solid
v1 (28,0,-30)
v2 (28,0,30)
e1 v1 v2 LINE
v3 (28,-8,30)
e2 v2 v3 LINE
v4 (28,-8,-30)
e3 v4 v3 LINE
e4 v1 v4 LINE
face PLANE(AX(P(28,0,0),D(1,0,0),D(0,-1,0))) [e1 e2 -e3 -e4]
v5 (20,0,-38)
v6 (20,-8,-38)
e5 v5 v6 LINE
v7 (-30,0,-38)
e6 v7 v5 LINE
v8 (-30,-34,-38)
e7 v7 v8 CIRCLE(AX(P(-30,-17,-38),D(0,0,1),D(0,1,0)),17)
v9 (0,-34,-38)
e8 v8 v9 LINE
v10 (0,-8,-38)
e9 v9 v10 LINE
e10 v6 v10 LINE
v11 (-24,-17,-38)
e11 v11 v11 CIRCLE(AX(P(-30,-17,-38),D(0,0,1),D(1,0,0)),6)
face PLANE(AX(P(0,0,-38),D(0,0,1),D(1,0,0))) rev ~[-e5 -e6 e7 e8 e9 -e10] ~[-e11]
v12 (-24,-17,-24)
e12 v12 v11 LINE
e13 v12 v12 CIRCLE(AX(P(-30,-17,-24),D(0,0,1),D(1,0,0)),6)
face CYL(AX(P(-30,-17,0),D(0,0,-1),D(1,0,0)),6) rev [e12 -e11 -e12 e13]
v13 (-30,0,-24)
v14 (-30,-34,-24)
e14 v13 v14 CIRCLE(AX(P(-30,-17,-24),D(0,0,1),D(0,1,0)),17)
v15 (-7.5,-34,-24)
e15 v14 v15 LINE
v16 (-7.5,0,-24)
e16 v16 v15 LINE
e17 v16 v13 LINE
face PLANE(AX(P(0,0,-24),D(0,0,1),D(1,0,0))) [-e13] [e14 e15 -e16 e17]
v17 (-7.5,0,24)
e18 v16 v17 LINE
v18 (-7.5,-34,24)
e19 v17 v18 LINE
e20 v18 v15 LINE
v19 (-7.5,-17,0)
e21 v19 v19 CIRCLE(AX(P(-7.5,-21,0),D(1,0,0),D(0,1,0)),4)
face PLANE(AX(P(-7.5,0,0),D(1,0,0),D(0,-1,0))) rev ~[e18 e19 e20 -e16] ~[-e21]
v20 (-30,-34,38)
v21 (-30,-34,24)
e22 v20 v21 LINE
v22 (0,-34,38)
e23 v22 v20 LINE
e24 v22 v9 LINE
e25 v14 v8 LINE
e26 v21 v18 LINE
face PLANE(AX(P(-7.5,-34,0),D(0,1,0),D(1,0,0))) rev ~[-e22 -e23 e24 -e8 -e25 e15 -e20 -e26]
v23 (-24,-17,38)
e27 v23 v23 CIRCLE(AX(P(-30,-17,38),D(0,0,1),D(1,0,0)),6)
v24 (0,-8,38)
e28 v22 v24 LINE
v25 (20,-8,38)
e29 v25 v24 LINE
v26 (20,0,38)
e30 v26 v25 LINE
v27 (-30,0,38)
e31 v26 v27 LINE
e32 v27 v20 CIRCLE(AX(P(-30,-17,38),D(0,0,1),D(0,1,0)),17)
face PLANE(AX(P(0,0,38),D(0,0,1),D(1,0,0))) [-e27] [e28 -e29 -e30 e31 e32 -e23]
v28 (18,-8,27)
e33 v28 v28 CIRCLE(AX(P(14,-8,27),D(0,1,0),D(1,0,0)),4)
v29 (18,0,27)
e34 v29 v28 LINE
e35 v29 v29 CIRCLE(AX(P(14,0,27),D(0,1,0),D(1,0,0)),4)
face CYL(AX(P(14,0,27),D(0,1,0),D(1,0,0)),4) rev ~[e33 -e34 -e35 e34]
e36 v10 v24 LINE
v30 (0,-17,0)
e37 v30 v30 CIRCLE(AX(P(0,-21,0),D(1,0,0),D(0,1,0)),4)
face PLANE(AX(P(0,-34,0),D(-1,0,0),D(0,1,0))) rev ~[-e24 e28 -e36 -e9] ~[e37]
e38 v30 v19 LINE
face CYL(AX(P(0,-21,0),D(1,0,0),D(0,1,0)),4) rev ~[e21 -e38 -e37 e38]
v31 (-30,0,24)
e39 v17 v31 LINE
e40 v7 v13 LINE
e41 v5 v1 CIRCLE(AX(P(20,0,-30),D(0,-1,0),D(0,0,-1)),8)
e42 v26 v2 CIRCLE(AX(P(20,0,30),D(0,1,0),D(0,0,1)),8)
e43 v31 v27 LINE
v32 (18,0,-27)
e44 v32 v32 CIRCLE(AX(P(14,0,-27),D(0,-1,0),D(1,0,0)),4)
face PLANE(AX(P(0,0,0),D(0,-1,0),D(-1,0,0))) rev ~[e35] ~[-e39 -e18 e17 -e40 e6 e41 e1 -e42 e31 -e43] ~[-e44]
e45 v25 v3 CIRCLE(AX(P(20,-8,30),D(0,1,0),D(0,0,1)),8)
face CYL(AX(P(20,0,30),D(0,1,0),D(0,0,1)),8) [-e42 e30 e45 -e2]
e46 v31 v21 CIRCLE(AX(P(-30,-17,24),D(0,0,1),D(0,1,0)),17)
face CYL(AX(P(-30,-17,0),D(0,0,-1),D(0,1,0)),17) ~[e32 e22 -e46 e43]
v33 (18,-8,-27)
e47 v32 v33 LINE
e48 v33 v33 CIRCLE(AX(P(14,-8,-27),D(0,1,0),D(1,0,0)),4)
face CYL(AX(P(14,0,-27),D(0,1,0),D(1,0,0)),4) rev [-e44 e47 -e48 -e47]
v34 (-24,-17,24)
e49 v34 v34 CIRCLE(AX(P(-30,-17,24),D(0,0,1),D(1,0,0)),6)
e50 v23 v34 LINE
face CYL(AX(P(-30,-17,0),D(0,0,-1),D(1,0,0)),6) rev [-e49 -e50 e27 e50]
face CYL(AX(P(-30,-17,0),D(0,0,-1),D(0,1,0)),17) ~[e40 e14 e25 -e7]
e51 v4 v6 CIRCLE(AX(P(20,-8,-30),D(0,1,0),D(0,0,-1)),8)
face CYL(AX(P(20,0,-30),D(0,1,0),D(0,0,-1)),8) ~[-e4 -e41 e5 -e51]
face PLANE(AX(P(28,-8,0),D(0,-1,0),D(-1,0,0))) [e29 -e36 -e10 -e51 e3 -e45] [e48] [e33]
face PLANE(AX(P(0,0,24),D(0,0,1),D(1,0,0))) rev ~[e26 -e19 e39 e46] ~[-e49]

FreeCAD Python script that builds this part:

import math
import FreeCAD as App
import Part
import Sketcher

V = App.Vector
Q = App.Units.Quantity

doc = App.newDocument("Part")
body = doc.addObject("PartDesign::Body", "Body")

# Sketch on XY plane
sketch1 = doc.addObject("Sketcher::SketchObject", "Sketch")
body.addObject(sketch1)
sketch1.AttachmentSupport = (doc.XY_Plane, [""])
sketch1.MapMode = "FlatFace"
sketch1.addGeometry(Part.LineSegment(V(0, -34, 0), V(0, -8, 0)), False)
sketch1.addGeometry(Part.LineSegment(V(0, -8, 0), V(28, -8, 0)), False)
sketch1.addGeometry(Part.LineSegment(V(28, -8, 0), V(28, 0, 0)), False)
sketch1.addGeometry(Part.LineSegment(V(28, 0, 0), V(-30, 0, 0)), False)
sketch1.addGeometry(Part.ArcOfCircle(Part.Circle(V(-30, -17, 0), V(0, 0, 1), 17), math.radians(90), math.radians(270)), False)
sketch1.addGeometry(Part.LineSegment(V(-30, -34, 0), V(0, -34, 0)), False)
sketch1.addGeometry(Part.Circle(V(-30, -17, 0), V(0, 0, 1), 6), False)
sketch1.addConstraint(Sketcher.Constraint("Coincident", 0, 2, 1, 1))
sketch1.addConstraint(Sketcher.Constraint("Coincident", 1, 2, 2, 1))
sketch1.addConstraint(Sketcher.Constraint("Coincident", 2, 2, 3, 1))
sketch1.addConstraint(Sketcher.Constraint("Tangent", 3, 2, 4, 1))
sketch1.addConstraint(Sketcher.Constraint("Tangent", 4, 2, 5, 1))
sketch1.addConstraint(Sketcher.Constraint("Coincident", 5, 2, 0, 1))
sketch1.addConstraint(Sketcher.Constraint("Vertical", 0))
sketch1.addConstraint(Sketcher.Constraint("Horizontal", 1))
sketch1.addConstraint(Sketcher.Constraint("Vertical", 2))
sketch1.addConstraint(Sketcher.Constraint("Horizontal", 3))
sketch1.addConstraint(Sketcher.Constraint("Horizontal", 5))
sketch1.addConstraint(Sketcher.Constraint("Coincident", 6, 3, 4, 3))
sketch1.addConstraint(Sketcher.Constraint("PointOnObject", 0, 2, -2))
sketch1.addConstraint(Sketcher.Constraint("PointOnObject", 2, 2, -1))
sketch1.addConstraint(Sketcher.Constraint("Diameter", 6, Q("12 mm")))
sketch1.addConstraint(Sketcher.Constraint("Radius", 4, Q("17 mm")))
sketch1.addConstraint(Sketcher.Constraint("DistanceX", 1, 1, 1, 2, Q("28 mm")))
sketch1.addConstraint(Sketcher.Constraint("DistanceX", 5, 1, 5, 2, Q("30 mm")))
sketch1.addConstraint(Sketcher.Constraint("DistanceY", 2, 1, 2, 2, Q("8 mm")))
pad1 = doc.addObject("PartDesign::Pad", "Pad")
body.addObject(pad1)
pad1.Profile = sketch1
pad1.Type = "TwoLengths"
pad1.Length = 38
pad1.Length2 = 38

# Sketch on XY plane
sketch2 = doc.addObject("Sketcher::SketchObject", "Sketch001")
body.addObject(sketch2)
sketch2.AttachmentSupport = (doc.XY_Plane, [""])
sketch2.MapMode = "FlatFace"
sketch2.addGeometry(Part.LineSegment(V(-8, -34, 0), V(-8, 0, 0)), False)
sketch2.addGeometry(Part.LineSegment(V(-8, 0, 0), V(-30, 0, 0)), False)
sketch2.addGeometry(Part.ArcOfCircle(Part.Circle(V(-30, -17, 0), V(0, 0, 1), 17), math.radians(90), math.radians(270)), False)
sketch2.addGeometry(Part.LineSegment(V(-30, -34, 0), V(-8, -34, 0)), False)
sketch2.addGeometry(Part.Circle(V(-30, -17, 0), V(0, 0, 1), 6), False)
sketch2.addConstraint(Sketcher.Constraint("Coincident", 0, 2, 1, 1))
sketch2.addConstraint(Sketcher.Constraint("Tangent", 1, 2, 2, 1))
sketch2.addConstraint(Sketcher.Constraint("Tangent", 2, 2, 3, 1))
sketch2.addConstraint(Sketcher.Constraint("Coincident", 3, 2, 0, 1))
sketch2.addConstraint(Sketcher.Constraint("Vertical", 0))
sketch2.addConstraint(Sketcher.Constraint("Horizontal", 1))
sketch2.addConstraint(Sketcher.Constraint("Horizontal", 3))
sketch2.addConstraint(Sketcher.Constraint("Coincident", 4, 3, 2, 3))
sketch2.addConstraint(Sketcher.Constraint("PointOnObject", 0, 2, -1))
sketch2.addConstraint(Sketcher.Constraint("Diameter", 4, Q("12 mm")))
sketch2.addConstraint(Sketcher.Constraint("Radius", 2, Q("17 mm")))
sketch2.addConstraint(Sketcher.Constraint("DistanceX", 2, 3, -1, 1, Q("30 mm")))
sketch2.addConstraint(Sketcher.Constraint("DistanceX", 0, 2, -1, 1, Q("7.5 mm")))
pocket1 = doc.addObject("PartDesign::Pocket", "Pocket")
body.addObject(pocket1)
pocket1.Profile = sketch2
pocket1.Type = "TwoLengths"
pocket1.Length = 24
pocket1.Length2 = 24
pocket1.Reversed = True

# Sketch on XZ plane
sketch3 = doc.addObject("Sketcher::SketchObject", "Sketch002")
body.addObject(sketch3)
sketch3.AttachmentSupport = (doc.XZ_Plane, [""])
sketch3.MapMode = "FlatFace"
sketch3.addGeometry(Part.Circle(V(14, 27, 0), V(0, 0, 1), 4), False)
sketch3.addGeometry(Part.ArcOfCircle(Part.Circle(V(20, 30, 0), V(0, 0, 1), 8), math.radians(0), math.radians(90)), False)
sketch3.addGeometry(Part.LineSegment(V(20, 38, 0), V(28, 38, 0)), False)
sketch3.addGeometry(Part.LineSegment(V(28, 38, 0), V(28, 30, 0)), False)
sketch3.addConstraint(Sketcher.Constraint("Tangent", 1, 2, 2, 1))
sketch3.addConstraint(Sketcher.Constraint("Coincident", 2, 2, 3, 1))
sketch3.addConstraint(Sketcher.Constraint("Tangent", 3, 2, 1, 1))
sketch3.addConstraint(Sketcher.Constraint("Horizontal", 2))
sketch3.addConstraint(Sketcher.Constraint("Vertical", 3))
sketch3.addConstraint(Sketcher.Constraint("Diameter", 0, Q("8 mm")))
sketch3.addConstraint(Sketcher.Constraint("Radius", 1, Q("8 mm")))
sketch3.addConstraint(Sketcher.Constraint("DistanceX", -1, 1, 0, 3, Q("14 mm")))
sketch3.addConstraint(Sketcher.Constraint("DistanceY", -1, 1, 0, 3, Q("27 mm")))
sketch3.addConstraint(Sketcher.Constraint("DistanceY", -1, 1, 1, 2, Q("38 mm")))
sketch3.addConstraint(Sketcher.Constraint("DistanceX", -1, 1, 2, 2, Q("28 mm")))
pocket2 = doc.addObject("PartDesign::Pocket", "Pocket001")
body.addObject(pocket2)
pocket2.Profile = sketch3
pocket2.Type = "ThroughAll"
pocket2.Reversed = True

# Sketch on YZ plane
sketch4 = doc.addObject("Sketcher::SketchObject", "Sketch003")
body.addObject(sketch4)
sketch4.AttachmentSupport = (doc.YZ_Plane, [""])
sketch4.MapMode = "FlatFace"
sketch4.addGeometry(Part.Circle(V(-21, 0, 0), V(0, 0, 1), 4), False)
sketch4.addConstraint(Sketcher.Constraint("PointOnObject", 0, 3, -1))
sketch4.addConstraint(Sketcher.Constraint("Diameter", 0, Q("8 mm")))
sketch4.addConstraint(Sketcher.Constraint("DistanceX", 0, 3, -1, 1, Q("21 mm")))
pocket3 = doc.addObject("PartDesign::Pocket", "Pocket002")
body.addObject(pocket3)
pocket3.Profile = sketch4
pocket3.Type = "ThroughAll"
doc.recompute()

mirrored = doc.addObject("PartDesign::Mirrored", "Mirrored")
body.addObject(mirrored)
mirrored.Originals = [pocket2]
mirrored.MirrorPlane = (doc.XY_Plane, [""])
body.Tip = mirrored

doc.recompute()
